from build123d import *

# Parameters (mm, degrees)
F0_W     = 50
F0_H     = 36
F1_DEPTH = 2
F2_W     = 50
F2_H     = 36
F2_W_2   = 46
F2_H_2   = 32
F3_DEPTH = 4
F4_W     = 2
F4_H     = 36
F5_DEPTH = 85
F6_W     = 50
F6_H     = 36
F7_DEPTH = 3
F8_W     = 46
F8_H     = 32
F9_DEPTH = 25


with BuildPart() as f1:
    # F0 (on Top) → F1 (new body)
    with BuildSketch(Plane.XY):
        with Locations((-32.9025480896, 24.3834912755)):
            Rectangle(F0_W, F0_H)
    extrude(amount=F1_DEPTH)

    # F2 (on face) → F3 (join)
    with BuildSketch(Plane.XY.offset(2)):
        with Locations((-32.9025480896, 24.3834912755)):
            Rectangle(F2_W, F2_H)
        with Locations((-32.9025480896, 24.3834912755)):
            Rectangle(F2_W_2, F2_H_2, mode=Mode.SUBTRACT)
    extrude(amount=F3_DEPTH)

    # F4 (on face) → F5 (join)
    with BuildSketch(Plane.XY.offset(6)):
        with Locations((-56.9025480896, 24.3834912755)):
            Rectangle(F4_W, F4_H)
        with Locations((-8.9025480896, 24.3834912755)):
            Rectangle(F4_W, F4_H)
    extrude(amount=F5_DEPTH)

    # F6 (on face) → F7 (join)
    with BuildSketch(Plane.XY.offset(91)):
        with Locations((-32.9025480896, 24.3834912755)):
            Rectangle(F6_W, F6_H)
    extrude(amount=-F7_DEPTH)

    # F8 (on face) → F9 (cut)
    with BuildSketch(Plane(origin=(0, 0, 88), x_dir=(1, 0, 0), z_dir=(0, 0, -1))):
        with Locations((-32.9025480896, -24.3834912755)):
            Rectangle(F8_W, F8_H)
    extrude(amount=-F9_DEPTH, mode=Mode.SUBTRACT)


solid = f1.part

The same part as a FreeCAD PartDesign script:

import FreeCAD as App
import Part
import Sketcher

doc = App.newDocument("Part")
body = doc.addObject("PartDesign::Body", "Body")

# Sketch on XY plane
sketch1 = body.newObject("Sketcher::SketchObject", "Sketch")
sketch1.AttachmentSupport = (doc.getObject("XY_Plane"), [""])
sketch1.MapMode = "FlatFace"
sketch1.addGeometry(Part.LineSegment(App.Vector(-58, 42, 0), App.Vector(-58, 6, 0)), False)
sketch1.addGeometry(Part.LineSegment(App.Vector(-58, 6, 0), App.Vector(-8, 6, 0)), False)
sketch1.addGeometry(Part.LineSegment(App.Vector(-8, 6, 0), App.Vector(-8, 42, 0)), False)
sketch1.addGeometry(Part.LineSegment(App.Vector(-8, 42, 0), App.Vector(-58, 42, 0)), False)
sketch1.addConstraint(Sketcher.Constraint("Coincident", 0, 2, 1, 1))
sketch1.addConstraint(Sketcher.Constraint("Coincident", 1, 2, 2, 1))
sketch1.addConstraint(Sketcher.Constraint("Coincident", 2, 2, 3, 1))
sketch1.addConstraint(Sketcher.Constraint("Coincident", 3, 2, 0, 1))
sketch1.addConstraint(Sketcher.Constraint("Vertical", 0))
sketch1.addConstraint(Sketcher.Constraint("Horizontal", 1))
sketch1.addConstraint(Sketcher.Constraint("Vertical", 2))
sketch1.addConstraint(Sketcher.Constraint("Horizontal", 3))
sketch1.addConstraint(Sketcher.Constraint("DistanceX", 1, 1, 1, 2, 50.0))
sketch1.addConstraint(Sketcher.Constraint("DistanceY", 0, 2, 0, 1, 36.0))
sketch1.addConstraint(Sketcher.Constraint("DistanceX", 0, 2, -1, 1, 57.902548))
sketch1.addConstraint(Sketcher.Constraint("DistanceY", -1, 1, 0, 2, 6.383491))
pad1 = body.newObject("PartDesign::Pad", "Pad")
pad1.Profile = sketch1
pad1.Length = 2

# Sketch on XY plane
sketch2 = body.newObject("Sketcher::SketchObject", "Sketch001")
sketch2.AttachmentSupport = (doc.getObject("XY_Plane"), [""])
sketch2.MapMode = "FlatFace"
sketch2.AttachmentOffset = App.Placement(App.Vector(0, 0, 2), App.Rotation())
sketch2.addGeometry(Part.LineSegment(App.Vector(-58, 42, 0), App.Vector(-58, 6, 0)), False)
sketch2.addGeometry(Part.LineSegment(App.Vector(-58, 6, 0), App.Vector(-8, 6, 0)), False)
sketch2.addGeometry(Part.LineSegment(App.Vector(-8, 6, 0), App.Vector(-8, 42, 0)), False)
sketch2.addGeometry(Part.LineSegment(App.Vector(-8, 42, 0), App.Vector(-58, 42, 0)), False)
sketch2.addGeometry(Part.LineSegment(App.Vector(-10, 8, 0), App.Vector(-56, 8, 0)), False)
sketch2.addGeometry(Part.LineSegment(App.Vector(-56, 8, 0), App.Vector(-56, 40, 0)), False)
sketch2.addGeometry(Part.LineSegment(App.Vector(-56, 40, 0), App.Vector(-10, 40, 0)), False)
sketch2.addGeometry(Part.LineSegment(App.Vector(-10, 40, 0), App.Vector(-10, 8, 0)), False)
sketch2.addConstraint(Sketcher.Constraint("Coincident", 0, 2, 1, 1))
sketch2.addConstraint(Sketcher.Constraint("Coincident", 1, 2, 2, 1))
sketch2.addConstraint(Sketcher.Constraint("Coincident", 2, 2, 3, 1))
sketch2.addConstraint(Sketcher.Constraint("Coincident", 3, 2, 0, 1))
sketch2.addConstraint(Sketcher.Constraint("Coincident", 4, 2, 5, 1))
sketch2.addConstraint(Sketcher.Constraint("Coincident", 5, 2, 6, 1))
sketch2.addConstraint(Sketcher.Constraint("Coincident", 6, 2, 7, 1))
sketch2.addConstraint(Sketcher.Constraint("Coincident", 7, 2, 4, 1))
sketch2.addConstraint(Sketcher.Constraint("Vertical", 0))
sketch2.addConstraint(Sketcher.Constraint("Horizontal", 1))
sketch2.addConstraint(Sketcher.Constraint("Vertical", 2))
sketch2.addConstraint(Sketcher.Constraint("Horizontal", 3))
sketch2.addConstraint(Sketcher.Constraint("Horizontal", 4))
sketch2.addConstraint(Sketcher.Constraint("Vertical", 5))
sketch2.addConstraint(Sketcher.Constraint("Horizontal", 6))
sketch2.addConstraint(Sketcher.Constraint("Vertical", 7))
sketch2.addConstraint(Sketcher.Constraint("DistanceX", 1, 1, 1, 2, 50.0))
sketch2.addConstraint(Sketcher.Constraint("DistanceX", 4, 2, 4, 1, 46.0))
sketch2.addConstraint(Sketcher.Constraint("DistanceY", 0, 2, 0, 1, 36.0))
sketch2.addConstraint(Sketcher.Constraint("DistanceY", 5, 1, 5, 2, 32.0))
sketch2.addConstraint(Sketcher.Constraint("DistanceX", 0, 2, 4, 2, 2.0))
sketch2.addConstraint(Sketcher.Constraint("DistanceY", 0, 2, 4, 2, 2.0))
sketch2.addConstraint(Sketcher.Constraint("DistanceX", 0, 2, -1, 1, 57.902548))
sketch2.addConstraint(Sketcher.Constraint("DistanceY", -1, 1, 0, 2, 6.383491))
pad2 = body.newObject("PartDesign::Pad", "Pad001")
pad2.Profile = sketch2
pad2.Length = 4

# Sketch on XY plane
sketch3 = body.newObject("Sketcher::SketchObject", "Sketch002")
sketch3.AttachmentSupport = (doc.getObject("XY_Plane"), [""])
sketch3.MapMode = "FlatFace"
sketch3.AttachmentOffset = App.Placement(App.Vector(0, 0, 6), App.Rotation())
sketch3.addGeometry(Part.LineSegment(App.Vector(-57.9, 42.4, 0), App.Vector(-57.9, 6.4, 0)), False)
sketch3.addGeometry(Part.LineSegment(App.Vector(-57.9, 6.4, 0), App.Vector(-55.9, 6.4, 0)), False)
sketch3.addGeometry(Part.LineSegment(App.Vector(-55.9, 6.4, 0), App.Vector(-55.9, 42.4, 0)), False)
sketch3.addGeometry(Part.LineSegment(App.Vector(-55.9, 42.4, 0), App.Vector(-57.9, 42.4, 0)), False)
sketch3.addGeometry(Part.LineSegment(App.Vector(-9.9, 42.4, 0), App.Vector(-9.9, 6.4, 0)), False)
sketch3.addGeometry(Part.LineSegment(App.Vector(-9.9, 6.4, 0), App.Vector(-7.9, 6.4, 0)), False)
sketch3.addGeometry(Part.LineSegment(App.Vector(-7.9, 6.4, 0), App.Vector(-7.9, 42.4, 0)), False)
sketch3.addGeometry(Part.LineSegment(App.Vector(-7.9, 42.4, 0), App.Vector(-9.9, 42.4, 0)), False)
sketch3.addConstraint(Sketcher.Constraint("Coincident", 0, 2, 1, 1))
sketch3.addConstraint(Sketcher.Constraint("Coincident", 1, 2, 2, 1))
sketch3.addConstraint(Sketcher.Constraint("Coincident", 2, 2, 3, 1))
sketch3.addConstraint(Sketcher.Constraint("Coincident", 3, 2, 0, 1))
sketch3.addConstraint(Sketcher.Constraint("Coincident", 4, 2, 5, 1))
sketch3.addConstraint(Sketcher.Constraint("Coincident", 5, 2, 6, 1))
sketch3.addConstraint(Sketcher.Constraint("Coincident", 6, 2, 7, 1))
sketch3.addConstraint(Sketcher.Constraint("Coincident", 7, 2, 4, 1))
sketch3.addConstraint(Sketcher.Constraint("Vertical", 0))
sketch3.addConstraint(Sketcher.Constraint("Horizontal", 1))
sketch3.addConstraint(Sketcher.Constraint("Vertical", 2))
sketch3.addConstraint(Sketcher.Constraint("Horizontal", 3))
sketch3.addConstraint(Sketcher.Constraint("Vertical", 4))
sketch3.addConstraint(Sketcher.Constraint("Horizontal", 5))
sketch3.addConstraint(Sketcher.Constraint("Vertical", 6))
sketch3.addConstraint(Sketcher.Constraint("Horizontal", 7))
sketch3.addConstraint(Sketcher.Constraint("Horizontal", 1, 2, 4, 2))
sketch3.addConstraint(Sketcher.Constraint("Horizontal", 3, 2, 6, 2))
sketch3.addConstraint(Sketcher.Constraint("Equal", 3, 5))
sketch3.addConstraint(Sketcher.Constraint("DistanceX", 1, 1, 1, 2, 2.0))
sketch3.addConstraint(Sketcher.Constraint("DistanceY", 0, 2, 0, 1, 36.0))
sketch3.addConstraint(Sketcher.Constraint("DistanceX", 1, 2, 4, 2, 46.0))
sketch3.addConstraint(Sketcher.Constraint("DistanceX", 0, 2, -1, 1, 57.902548))
sketch3.addConstraint(Sketcher.Constraint("DistanceY", -1, 1, 0, 2, 6.383491))
pad3 = body.newObject("PartDesign::Pad", "Pad002")
pad3.Profile = sketch3
pad3.Length = 85

# Sketch on XY plane
sketch4 = body.newObject("Sketcher::SketchObject", "Sketch003")
sketch4.AttachmentSupport = (doc.getObject("XY_Plane"), [""])
sketch4.MapMode = "FlatFace"
sketch4.AttachmentOffset = App.Placement(App.Vector(0, 0, 91), App.Rotation())
sketch4.addGeometry(Part.LineSegment(App.Vector(-58, 42, 0), App.Vector(-58, 6, 0)), False)
sketch4.addGeometry(Part.LineSegment(App.Vector(-58, 6, 0), App.Vector(-8, 6, 0)), False)
sketch4.addGeometry(Part.LineSegment(App.Vector(-8, 6, 0), App.Vector(-8, 42, 0)), False)
sketch4.addGeometry(Part.LineSegment(App.Vector(-8, 42, 0), App.Vector(-58, 42, 0)), False)
sketch4.addConstraint(Sketcher.Constraint("Coincident", 0, 2, 1, 1))
sketch4.addConstraint(Sketcher.Constraint("Coincident", 1, 2, 2, 1))
sketch4.addConstraint(Sketcher.Constraint("Coincident", 2, 2, 3, 1))
sketch4.addConstraint(Sketcher.Constraint("Coincident", 3, 2, 0, 1))
sketch4.addConstraint(Sketcher.Constraint("Vertical", 0))
sketch4.addConstraint(Sketcher.Constraint("Horizontal", 1))
sketch4.addConstraint(Sketcher.Constraint("Vertical", 2))
sketch4.addConstraint(Sketcher.Constraint("Horizontal", 3))
sketch4.addConstraint(Sketcher.Constraint("DistanceX", 1, 1, 1, 2, 50.0))
sketch4.addConstraint(Sketcher.Constraint("DistanceY", 0, 2, 0, 1, 36.0))
sketch4.addConstraint(Sketcher.Constraint("DistanceX", 0, 2, -1, 1, 57.902548))
sketch4.addConstraint(Sketcher.Constraint("DistanceY", -1, 1, 0, 2, 6.383491))
pad4 = body.newObject("PartDesign::Pad", "Pad003")
pad4.Profile = sketch4
pad4.Length = 3
pad4.Reversed = True

# Sketch on XY plane
sketch5 = body.newObject("Sketcher::SketchObject", "Sketch004")
sketch5.AttachmentSupport = (doc.getObject("XY_Plane"), [""])
sketch5.MapMode = "FlatFace"
sketch5.AttachmentOffset = App.Placement(App.Vector(0, 0, 88), App.Rotation())
sketch5.addGeometry(Part.LineSegment(App.Vector(-56, 8, 0), App.Vector(-56, 40, 0)), False)
sketch5.addGeometry(Part.LineSegment(App.Vector(-56, 40, 0), App.Vector(-10, 40, 0)), False)
sketch5.addGeometry(Part.LineSegment(App.Vector(-10, 40, 0), App.Vector(-10, 8, 0)), False)
sketch5.addGeometry(Part.LineSegment(App.Vector(-10, 8, 0), App.Vector(-56, 8, 0)), False)
sketch5.addConstraint(Sketcher.Constraint("Coincident", 0, 2, 1, 1))
sketch5.addConstraint(Sketcher.Constraint("Coincident", 1, 2, 2, 1))
sketch5.addConstraint(Sketcher.Constraint("Coincident", 2, 2, 3, 1))
sketch5.addConstraint(Sketcher.Constraint("Coincident", 3, 2, 0, 1))
sketch5.addConstraint(Sketcher.Constraint("Vertical", 0))
sketch5.addConstraint(Sketcher.Constraint("Horizontal", 1))
sketch5.addConstraint(Sketcher.Constraint("Vertical", 2))
sketch5.addConstraint(Sketcher.Constraint("Horizontal", 3))
sketch5.addConstraint(Sketcher.Constraint("DistanceX", 1, 1, 1, 2, 46.0))
sketch5.addConstraint(Sketcher.Constraint("DistanceY", 0, 1, 0, 2, 32.0))
sketch5.addConstraint(Sketcher.Constraint("DistanceX", 0, 2, -1, 1, 55.902548))
sketch5.addConstraint(Sketcher.Constraint("DistanceY", -1, 1, 0, 2, 40.383491))
pocket1 = body.newObject("PartDesign::Pocket", "Pocket")
pocket1.Profile = sketch5
pocket1.Length = 25
pocket1.Reversed = True

doc.recompute()
